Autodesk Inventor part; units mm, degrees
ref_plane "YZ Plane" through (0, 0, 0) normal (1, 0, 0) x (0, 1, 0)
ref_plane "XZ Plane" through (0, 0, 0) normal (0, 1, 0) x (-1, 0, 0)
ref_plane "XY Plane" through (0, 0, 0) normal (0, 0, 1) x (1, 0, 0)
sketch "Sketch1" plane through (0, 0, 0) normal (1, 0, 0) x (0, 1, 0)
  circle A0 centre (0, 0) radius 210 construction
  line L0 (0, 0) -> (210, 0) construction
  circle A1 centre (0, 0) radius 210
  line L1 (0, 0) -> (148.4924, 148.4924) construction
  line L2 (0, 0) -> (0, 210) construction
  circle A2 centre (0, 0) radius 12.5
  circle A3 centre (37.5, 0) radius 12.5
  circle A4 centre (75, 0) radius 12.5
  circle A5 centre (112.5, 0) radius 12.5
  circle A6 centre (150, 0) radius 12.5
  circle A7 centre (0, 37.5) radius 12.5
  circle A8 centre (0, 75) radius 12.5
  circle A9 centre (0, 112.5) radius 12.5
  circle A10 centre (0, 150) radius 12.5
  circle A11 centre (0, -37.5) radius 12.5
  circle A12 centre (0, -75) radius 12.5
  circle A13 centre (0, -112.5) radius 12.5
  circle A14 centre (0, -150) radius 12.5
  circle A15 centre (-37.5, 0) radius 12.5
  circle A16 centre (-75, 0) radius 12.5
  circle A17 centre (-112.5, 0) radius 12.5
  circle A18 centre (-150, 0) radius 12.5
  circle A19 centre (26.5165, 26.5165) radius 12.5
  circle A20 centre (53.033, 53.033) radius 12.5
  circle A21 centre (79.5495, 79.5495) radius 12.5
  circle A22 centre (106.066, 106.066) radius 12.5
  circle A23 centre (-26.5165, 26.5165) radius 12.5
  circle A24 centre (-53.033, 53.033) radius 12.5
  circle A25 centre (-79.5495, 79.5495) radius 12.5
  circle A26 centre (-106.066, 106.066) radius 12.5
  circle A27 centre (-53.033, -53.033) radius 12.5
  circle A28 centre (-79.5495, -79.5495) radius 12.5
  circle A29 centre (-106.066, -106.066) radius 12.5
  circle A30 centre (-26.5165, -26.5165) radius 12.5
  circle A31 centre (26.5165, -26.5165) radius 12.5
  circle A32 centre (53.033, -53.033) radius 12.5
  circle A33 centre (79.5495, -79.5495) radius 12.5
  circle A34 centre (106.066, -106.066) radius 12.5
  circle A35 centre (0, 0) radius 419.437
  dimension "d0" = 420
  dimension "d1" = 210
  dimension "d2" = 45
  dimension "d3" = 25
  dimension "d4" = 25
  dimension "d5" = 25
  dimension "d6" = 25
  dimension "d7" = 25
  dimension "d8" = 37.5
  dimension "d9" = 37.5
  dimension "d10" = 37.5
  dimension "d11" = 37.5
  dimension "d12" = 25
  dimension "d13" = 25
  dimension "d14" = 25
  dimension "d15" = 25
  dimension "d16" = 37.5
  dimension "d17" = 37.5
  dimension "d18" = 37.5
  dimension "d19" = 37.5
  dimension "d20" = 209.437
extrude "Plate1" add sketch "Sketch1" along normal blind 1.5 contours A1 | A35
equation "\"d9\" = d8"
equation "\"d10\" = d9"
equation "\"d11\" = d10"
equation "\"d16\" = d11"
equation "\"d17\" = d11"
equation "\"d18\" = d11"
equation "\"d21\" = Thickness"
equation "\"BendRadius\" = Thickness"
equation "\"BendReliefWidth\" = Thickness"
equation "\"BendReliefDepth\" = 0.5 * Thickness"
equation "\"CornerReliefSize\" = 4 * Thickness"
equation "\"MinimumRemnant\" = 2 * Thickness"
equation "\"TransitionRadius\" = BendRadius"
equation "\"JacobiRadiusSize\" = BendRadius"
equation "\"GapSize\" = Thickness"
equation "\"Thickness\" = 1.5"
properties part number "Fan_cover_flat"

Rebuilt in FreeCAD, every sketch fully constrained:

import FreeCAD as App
import Part
import Sketcher
Q = App.Units.Quantity

doc = App.newDocument("Part")
body = doc.addObject("PartDesign::Body", "Body")

sketch1 = body.newObject("Sketcher::SketchObject", "Sketch")
sketch1.AttachmentSupport = (doc.getObject("YZ_Plane"), [""])
sketch1.MapMode = "FlatFace"
sketch1.addGeometry(Part.Circle(App.Vector(0, 0, 0), App.Vector(0, 0, 1), 419), False)
sketch1.addGeometry(Part.Circle(App.Vector(-106, -106, 0), App.Vector(0, 0, 1), 12), False)
sketch1.addGeometry(Part.Circle(App.Vector(0, -150, 0), App.Vector(0, 0, 1), 12), False)
sketch1.addGeometry(Part.Circle(App.Vector(0, -112, 0), App.Vector(0, 0, 1), 12), False)
sketch1.addGeometry(Part.Circle(App.Vector(-150, 0, 0), App.Vector(0, 0, 1), 12), False)
sketch1.addGeometry(Part.Circle(App.Vector(-112, 0, 0), App.Vector(0, 0, 1), 12), False)
sketch1.addGeometry(Part.Circle(App.Vector(-80, -80, 0), App.Vector(0, 0, 1), 12), False)
sketch1.addGeometry(Part.Circle(App.Vector(-53, -53, 0), App.Vector(0, 0, 1), 12), False)
sketch1.addGeometry(Part.Circle(App.Vector(0, -75, 0), App.Vector(0, 0, 1), 12), False)
sketch1.addGeometry(Part.Circle(App.Vector(-75, 0, 0), App.Vector(0, 0, 1), 12), False)
sketch1.addGeometry(Part.Circle(App.Vector(-27, -27, 0), App.Vector(0, 0, 1), 12), False)
sketch1.addGeometry(Part.Circle(App.Vector(0, -38, 0), App.Vector(0, 0, 1), 12), False)
sketch1.addGeometry(Part.Circle(App.Vector(-38, 0, 0), App.Vector(0, 0, 1), 12), False)
sketch1.addGeometry(Part.Circle(App.Vector(0, 0, 0), App.Vector(0, 0, 1), 12), False)
sketch1.addGeometry(Part.Circle(App.Vector(106, -106, 0), App.Vector(0, 0, 1), 12), False)
sketch1.addGeometry(Part.Circle(App.Vector(80, -80, 0), App.Vector(0, 0, 1), 12), False)
sketch1.addGeometry(Part.Circle(App.Vector(53, -53, 0), App.Vector(0, 0, 1), 12), False)
sketch1.addGeometry(Part.Circle(App.Vector(27, -27, 0), App.Vector(0, 0, 1), 12), False)
sketch1.addGeometry(Part.Circle(App.Vector(38, 0, 0), App.Vector(0, 0, 1), 12), False)
sketch1.addGeometry(Part.Circle(App.Vector(75, 0, 0), App.Vector(0, 0, 1), 12), False)
sketch1.addGeometry(Part.Circle(App.Vector(112, 0, 0), App.Vector(0, 0, 1), 12), False)
sketch1.addGeometry(Part.Circle(App.Vector(150, 0, 0), App.Vector(0, 0, 1), 12), False)
sketch1.addGeometry(Part.Circle(App.Vector(-27, 27, 0), App.Vector(0, 0, 1), 12), False)
sketch1.addGeometry(Part.Circle(App.Vector(0, 38, 0), App.Vector(0, 0, 1), 12), False)
sketch1.addGeometry(Part.Circle(App.Vector(-53, 53, 0), App.Vector(0, 0, 1), 12), False)
sketch1.addGeometry(Part.Circle(App.Vector(-80, 80, 0), App.Vector(0, 0, 1), 12), False)
sketch1.addGeometry(Part.Circle(App.Vector(0, 75, 0), App.Vector(0, 0, 1), 12), False)
sketch1.addGeometry(Part.Circle(App.Vector(-106, 106, 0), App.Vector(0, 0, 1), 12), False)
sketch1.addGeometry(Part.Circle(App.Vector(0, 112, 0), App.Vector(0, 0, 1), 12), False)
sketch1.addGeometry(Part.Circle(App.Vector(0, 150, 0), App.Vector(0, 0, 1), 12), False)
sketch1.addGeometry(Part.Circle(App.Vector(27, 27, 0), App.Vector(0, 0, 1), 12), False)
sketch1.addGeometry(Part.Circle(App.Vector(53, 53, 0), App.Vector(0, 0, 1), 12), False)
sketch1.addGeometry(Part.Circle(App.Vector(80, 80, 0), App.Vector(0, 0, 1), 12), False)
sketch1.addGeometry(Part.Circle(App.Vector(106, 106, 0), App.Vector(0, 0, 1), 12), False)
sketch1.addConstraint(Sketcher.Constraint("Coincident", 0, 3, -1, 1))
sketch1.addConstraint(Sketcher.Constraint("Coincident", 13, 3, -1, 1))
sketch1.addConstraint(Sketcher.Constraint("Equal", 1, 2))
sketch1.addConstraint(Sketcher.Constraint("Equal", 2, 3))
sketch1.addConstraint(Sketcher.Constraint("Equal", 3, 4))
sketch1.addConstraint(Sketcher.Constraint("Equal", 4, 5))
sketch1.addConstraint(Sketcher.Constraint("Equal", 5, 6))
sketch1.addConstraint(Sketcher.Constraint("Equal", 6, 7))
sketch1.addConstraint(Sketcher.Constraint("Equal", 7, 8))
sketch1.addConstraint(Sketcher.Constraint("Equal", 8, 9))
sketch1.addConstraint(Sketcher.Constraint("Equal", 9, 10))
sketch1.addConstraint(Sketcher.Constraint("Equal", 10, 11))
sketch1.addConstraint(Sketcher.Constraint("Equal", 11, 12))
sketch1.addConstraint(Sketcher.Constraint("Equal", 12, 13))
sketch1.addConstraint(Sketcher.Constraint("Equal", 13, 14))
sketch1.addConstraint(Sketcher.Constraint("Equal", 14, 15))
sketch1.addConstraint(Sketcher.Constraint("Equal", 15, 16))
sketch1.addConstraint(Sketcher.Constraint("Equal", 16, 17))
sketch1.addConstraint(Sketcher.Constraint("Equal", 17, 18))
sketch1.addConstraint(Sketcher.Constraint("Equal", 18, 19))
sketch1.addConstraint(Sketcher.Constraint("Equal", 19, 20))
sketch1.addConstraint(Sketcher.Constraint("Equal", 20, 21))
sketch1.addConstraint(Sketcher.Constraint("Equal", 21, 22))
sketch1.addConstraint(Sketcher.Constraint("Equal", 22, 23))
sketch1.addConstraint(Sketcher.Constraint("Equal", 23, 24))
sketch1.addConstraint(Sketcher.Constraint("Equal", 24, 25))
sketch1.addConstraint(Sketcher.Constraint("Equal", 25, 26))
sketch1.addConstraint(Sketcher.Constraint("Equal", 26, 27))
sketch1.addConstraint(Sketcher.Constraint("Equal", 27, 28))
sketch1.addConstraint(Sketcher.Constraint("Equal", 28, 29))
sketch1.addConstraint(Sketcher.Constraint("Equal", 29, 30))
sketch1.addConstraint(Sketcher.Constraint("Equal", 30, 31))
sketch1.addConstraint(Sketcher.Constraint("Equal", 31, 32))
sketch1.addConstraint(Sketcher.Constraint("Equal", 32, 33))
sketch1.addConstraint(Sketcher.Constraint("Symmetric", 12, 3, 18, 3, -1, 1))
sketch1.addConstraint(Sketcher.Constraint("Symmetric", 9, 3, 19, 3, -1, 1))
sketch1.addConstraint(Sketcher.Constraint("Symmetric", 5, 3, 20, 3, -1, 1))
sketch1.addConstraint(Sketcher.Constraint("Symmetric", 4, 3, 21, 3, -1, 1))
sketch1.addConstraint(Sketcher.Constraint("Symmetric", 17, 3, 22, 3, -1, 1))
sketch1.addConstraint(Sketcher.Constraint("Symmetric", 11, 3, 23, 3, -1, 1))
sketch1.addConstraint(Sketcher.Constraint("Symmetric", 16, 3, 24, 3, -1, 1))
sketch1.addConstraint(Sketcher.Constraint("Symmetric", 15, 3, 25, 3, -1, 1))
sketch1.addConstraint(Sketcher.Constraint("Symmetric", 8, 3, 26, 3, -1, 1))
sketch1.addConstraint(Sketcher.Constraint("Symmetric", 14, 3, 27, 3, -1, 1))
sketch1.addConstraint(Sketcher.Constraint("Symmetric", 3, 3, 28, 3, -1, 1))
sketch1.addConstraint(Sketcher.Constraint("Symmetric", 2, 3, 29, 3, -1, 1))
sketch1.addConstraint(Sketcher.Constraint("Symmetric", 10, 3, 30, 3, -1, 1))
sketch1.addConstraint(Sketcher.Constraint("Symmetric", 7, 3, 31, 3, -1, 1))
sketch1.addConstraint(Sketcher.Constraint("Symmetric", 6, 3, 32, 3, -1, 1))
sketch1.addConstraint(Sketcher.Constraint("Symmetric", 1, 3, 33, 3, -1, 1))
sketch1.addConstraint(Sketcher.Constraint("Symmetric", 1, 3, 14, 3, -2))
sketch1.addConstraint(Sketcher.Constraint("Symmetric", 6, 3, 15, 3, -2))
sketch1.addConstraint(Sketcher.Constraint("Symmetric", 7, 3, 16, 3, -2))
sketch1.addConstraint(Sketcher.Constraint("Symmetric", 10, 3, 17, 3, -2))
sketch1.addConstraint(Sketcher.Constraint("PointOnObject", 2, 3, -2))
sketch1.addConstraint(Sketcher.Constraint("PointOnObject", 3, 3, -2))
sketch1.addConstraint(Sketcher.Constraint("PointOnObject", 4, 3, -1))
sketch1.addConstraint(Sketcher.Constraint("PointOnObject", 5, 3, -1))
sketch1.addConstraint(Sketcher.Constraint("PointOnObject", 8, 3, -2))
sketch1.addConstraint(Sketcher.Constraint("PointOnObject", 9, 3, -1))
sketch1.addConstraint(Sketcher.Constraint("PointOnObject", 11, 3, -2))
sketch1.addConstraint(Sketcher.Constraint("PointOnObject", 12, 3, -1))
sketch1.addConstraint(Sketcher.Constraint("Diameter", 1, Q("25 mm")))
sketch1.addConstraint(Sketcher.Constraint("DistanceY", 11, 3, -1, 1, Q("37.5 mm")))
sketch1.addConstraint(Sketcher.Constraint("DistanceX", 12, 3, -1, 1, Q("37.5 mm")))
sketch1.addConstraint(Sketcher.Constraint("DistanceY", 2, 3, 3, 3, Q("37.5 mm")))
sketch1.addConstraint(Sketcher.Constraint("DistanceX", 4, 3, 5, 3, Q("37.5 mm")))
sketch1.addConstraint(Sketcher.Constraint("DistanceY", 3, 3, 8, 3, Q("37.5 mm")))
sketch1.addConstraint(Sketcher.Constraint("DistanceX", 5, 3, 9, 3, Q("37.5 mm")))
sketch1.addConstraint(Sketcher.Constraint("DistanceY", 8, 3, 11, 3, Q("37.5 mm")))
sketch1.addConstraint(Sketcher.Constraint("DistanceX", 9, 3, 12, 3, Q("37.5 mm")))
sketch1.addConstraint(Sketcher.Constraint("Diameter", 0, Q("838.874 mm")))
sketch1.addConstraint(Sketcher.Constraint("DistanceX", 1, 3, -1, 1, Q("106.066 mm")))
sketch1.addConstraint(Sketcher.Constraint("DistanceY", 1, 3, -1, 1, Q("106.066 mm")))
sketch1.addConstraint(Sketcher.Constraint("DistanceX", 7, 3, -1, 1, Q("53.033 mm")))
sketch1.addConstraint(Sketcher.Constraint("DistanceY", 7, 3, -1, 1, Q("53.033 mm")))
sketch1.addConstraint(Sketcher.Constraint("DistanceX", 6, 3, 10, 3, Q("53.033 mm")))
sketch1.addConstraint(Sketcher.Constraint("DistanceY", 6, 3, 10, 3, Q("53.033 mm")))
sketch1.addConstraint(Sketcher.Constraint("DistanceX", 10, 3, 17, 3, Q("53.033 mm")))
sketch1.addConstraint(Sketcher.Constraint("DistanceY", 10, 3, 22, 3, Q("53.033 mm")))
pad1 = body.newObject("PartDesign::Pad", "Pad")
pad1.Profile = sketch1
pad1.Length = 1.5

doc.recompute()
